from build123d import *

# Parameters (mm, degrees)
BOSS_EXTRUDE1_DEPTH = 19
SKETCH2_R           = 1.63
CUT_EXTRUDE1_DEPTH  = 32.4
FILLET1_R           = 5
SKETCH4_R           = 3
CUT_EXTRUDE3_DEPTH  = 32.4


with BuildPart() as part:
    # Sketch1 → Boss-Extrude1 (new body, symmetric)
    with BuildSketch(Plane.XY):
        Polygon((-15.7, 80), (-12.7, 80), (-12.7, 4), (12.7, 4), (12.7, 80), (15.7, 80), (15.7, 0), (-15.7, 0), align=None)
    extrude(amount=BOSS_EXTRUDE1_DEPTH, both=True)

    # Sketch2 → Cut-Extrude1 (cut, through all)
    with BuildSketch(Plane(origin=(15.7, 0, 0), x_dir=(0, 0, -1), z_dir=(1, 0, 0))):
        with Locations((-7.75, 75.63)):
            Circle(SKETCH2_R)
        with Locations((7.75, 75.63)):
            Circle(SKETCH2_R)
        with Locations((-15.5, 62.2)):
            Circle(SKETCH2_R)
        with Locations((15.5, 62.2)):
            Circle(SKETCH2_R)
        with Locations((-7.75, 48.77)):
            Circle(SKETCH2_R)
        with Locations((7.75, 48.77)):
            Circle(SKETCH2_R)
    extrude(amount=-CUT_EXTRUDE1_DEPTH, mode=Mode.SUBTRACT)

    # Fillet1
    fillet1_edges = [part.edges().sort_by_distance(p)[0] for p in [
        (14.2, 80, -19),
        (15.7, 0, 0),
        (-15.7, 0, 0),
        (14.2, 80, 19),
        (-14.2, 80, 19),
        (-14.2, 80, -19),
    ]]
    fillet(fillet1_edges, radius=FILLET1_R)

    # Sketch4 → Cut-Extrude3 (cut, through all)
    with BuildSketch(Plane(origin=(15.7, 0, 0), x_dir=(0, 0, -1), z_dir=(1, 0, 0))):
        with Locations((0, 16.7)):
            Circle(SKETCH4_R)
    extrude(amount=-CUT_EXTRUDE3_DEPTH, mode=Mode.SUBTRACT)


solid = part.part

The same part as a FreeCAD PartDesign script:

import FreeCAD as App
import Part
import Sketcher
from FreeCAD import Vector
Q = App.Units.Quantity


def edges_at(feature, points):
    """Names of the edges that pass closest to the given points."""
    edges = feature.Shape.Edges
    near = lambda p: min(range(len(edges)), key=lambda i: edges[i].distToShape(Part.Vertex(*p))[0])
    return sorted({f"Edge{near(p) + 1}" for p in points})

doc = App.newDocument("Part")
body = doc.addObject("PartDesign::Body", "Body")

sketch1 = body.newObject("Sketcher::SketchObject", "Sketch")
sketch1.AttachmentSupport = (doc.getObject("XY_Plane"), [""])
sketch1.MapMode = "FlatFace"
sketch1.addGeometry(Part.LineSegment(Vector(-12.7, 80, 0), Vector(-15.7, 80, 0)), False)
sketch1.addGeometry(Part.LineSegment(Vector(-15.7, 80, 0), Vector(-15.7, 0, 0)), False)
sketch1.addGeometry(Part.LineSegment(Vector(-15.7, 0, 0), Vector(15.7, 0, 0)), False)
sketch1.addGeometry(Part.LineSegment(Vector(15.7, 0, 0), Vector(15.7, 80, 0)), False)
sketch1.addGeometry(Part.LineSegment(Vector(15.7, 80, 0), Vector(12.7, 80, 0)), False)
sketch1.addGeometry(Part.LineSegment(Vector(12.7, 80, 0), Vector(12.7, 4, 0)), False)
sketch1.addGeometry(Part.LineSegment(Vector(12.7, 4, 0), Vector(-12.7, 4, 0)), False)
sketch1.addGeometry(Part.LineSegment(Vector(-12.7, 4, 0), Vector(-12.7, 80, 0)), False)
sketch1.addConstraint(Sketcher.Constraint("Coincident", 0, 2, 1, 1))
sketch1.addConstraint(Sketcher.Constraint("Coincident", 1, 2, 2, 1))
sketch1.addConstraint(Sketcher.Constraint("Coincident", 2, 2, 3, 1))
sketch1.addConstraint(Sketcher.Constraint("Coincident", 3, 2, 4, 1))
sketch1.addConstraint(Sketcher.Constraint("Coincident", 4, 2, 5, 1))
sketch1.addConstraint(Sketcher.Constraint("Coincident", 5, 2, 6, 1))
sketch1.addConstraint(Sketcher.Constraint("Coincident", 6, 2, 7, 1))
sketch1.addConstraint(Sketcher.Constraint("Coincident", 7, 2, 0, 1))
sketch1.addConstraint(Sketcher.Constraint("Horizontal", 0))
sketch1.addConstraint(Sketcher.Constraint("Vertical", 1))
sketch1.addConstraint(Sketcher.Constraint("Horizontal", 2))
sketch1.addConstraint(Sketcher.Constraint("Vertical", 3))
sketch1.addConstraint(Sketcher.Constraint("Horizontal", 4))
sketch1.addConstraint(Sketcher.Constraint("Vertical", 5))
sketch1.addConstraint(Sketcher.Constraint("Horizontal", 6))
sketch1.addConstraint(Sketcher.Constraint("Vertical", 7))
sketch1.addConstraint(Sketcher.Constraint("Symmetric", 1, 2, 2, 2, -1, 1))
sketch1.addConstraint(Sketcher.Constraint("Symmetric", 4, 2, 7, 2, -2))
sketch1.addConstraint(Sketcher.Constraint("DistanceX", 0, 2, 0, 1, Q("3 mm")))
sketch1.addConstraint(Sketcher.Constraint("DistanceY", 1, 2, 1, 1, Q("80 mm")))
sketch1.addConstraint(Sketcher.Constraint("DistanceY", 5, 2, 5, 1, Q("76 mm")))
sketch1.addConstraint(Sketcher.Constraint("DistanceX", 2, 1, 2, 2, Q("31.4 mm")))
pad1 = body.newObject("PartDesign::Pad", "Pad")
pad1.Profile = sketch1
pad1.Length = 38
pad1.Midplane = True

sketch2 = body.newObject("Sketcher::SketchObject", "Sketch001")
sketch2.AttachmentSupport = (doc.getObject("YZ_Plane"), [""])
sketch2.MapMode = "FlatFace"
sketch2.AttachmentOffset = App.Placement(Vector(0, 0, 15.7), App.Rotation())
sketch2.addGeometry(Part.Circle(Vector(75.6, 7.8, 0), Vector(0, 0, 1), 1.6), False)
sketch2.addGeometry(Part.Circle(Vector(75.6, -7.8, 0), Vector(0, 0, 1), 1.6), False)
sketch2.addGeometry(Part.Circle(Vector(62.2, 15.5, 0), Vector(0, 0, 1), 1.6), False)
sketch2.addGeometry(Part.Circle(Vector(62.2, -15.5, 0), Vector(0, 0, 1), 1.6), False)
sketch2.addGeometry(Part.Circle(Vector(48.8, 7.8, 0), Vector(0, 0, 1), 1.6), False)
sketch2.addGeometry(Part.Circle(Vector(48.8, -7.8, 0), Vector(0, 0, 1), 1.6), False)
sketch2.addConstraint(Sketcher.Constraint("Equal", 0, 1))
sketch2.addConstraint(Sketcher.Constraint("Equal", 1, 2))
sketch2.addConstraint(Sketcher.Constraint("Equal", 2, 3))
sketch2.addConstraint(Sketcher.Constraint("Equal", 3, 4))
sketch2.addConstraint(Sketcher.Constraint("Equal", 4, 5))
sketch2.addConstraint(Sketcher.Constraint("Symmetric", 0, 3, 1, 3, -1))
sketch2.addConstraint(Sketcher.Constraint("Symmetric", 2, 3, 3, 3, -1))
sketch2.addConstraint(Sketcher.Constraint("Symmetric", 4, 3, 5, 3, -1))
sketch2.addConstraint(Sketcher.Constraint("Horizontal", 0, 3, 4, 3))
sketch2.addConstraint(Sketcher.Constraint("Diameter", 0, Q("3.26 mm")))
sketch2.addConstraint(Sketcher.Constraint("DistanceY", 3, 3, 2, 3, Q("31 mm")))
sketch2.addConstraint(Sketcher.Constraint("DistanceX", -1, 1, 2, 3, Q("62.2 mm")))
sketch2.addConstraint(Sketcher.Constraint("DistanceY", 1, 3, 0, 3, Q("15.5 mm")))
sketch2.addConstraint(Sketcher.Constraint("DistanceX", -1, 1, 0, 3, Q("75.63 mm")))
sketch2.addConstraint(Sketcher.Constraint("DistanceX", -1, 1, 4, 3, Q("48.77 mm")))
pocket1 = body.newObject("PartDesign::Pocket", "Pocket")
pocket1.Profile = sketch2
pocket1.Type = "ThroughAll"
doc.recompute()

fillet = body.newObject("PartDesign::Fillet", "Fillet")
fillet.Base = (pocket1, edges_at(pocket1, [
    (14.2, 80, -19),
    (15.7, 0, 0),
    (-15.7, 0, 0),
    (14.2, 80, 19),
    (-14.2, 80, 19),
    (-14.2, 80, -19),
]))
fillet.Radius = 5

sketch3 = body.newObject("Sketcher::SketchObject", "Sketch002")
sketch3.AttachmentSupport = (doc.getObject("YZ_Plane"), [""])
sketch3.MapMode = "FlatFace"
sketch3.AttachmentOffset = App.Placement(Vector(0, 0, 15.7), App.Rotation())
sketch3.addGeometry(Part.Circle(Vector(16.7, 0, 0), Vector(0, 0, 1), 3), False)
sketch3.addConstraint(Sketcher.Constraint("PointOnObject", 0, 3, -1))
sketch3.addConstraint(Sketcher.Constraint("Diameter", 0, Q("6 mm")))
sketch3.addConstraint(Sketcher.Constraint("DistanceX", -1, 1, 0, 3, Q("16.7 mm")))
pocket2 = body.newObject("PartDesign::Pocket", "Pocket001")
pocket2.Profile = sketch3
pocket2.Type = "ThroughAll"

doc.recompute()
